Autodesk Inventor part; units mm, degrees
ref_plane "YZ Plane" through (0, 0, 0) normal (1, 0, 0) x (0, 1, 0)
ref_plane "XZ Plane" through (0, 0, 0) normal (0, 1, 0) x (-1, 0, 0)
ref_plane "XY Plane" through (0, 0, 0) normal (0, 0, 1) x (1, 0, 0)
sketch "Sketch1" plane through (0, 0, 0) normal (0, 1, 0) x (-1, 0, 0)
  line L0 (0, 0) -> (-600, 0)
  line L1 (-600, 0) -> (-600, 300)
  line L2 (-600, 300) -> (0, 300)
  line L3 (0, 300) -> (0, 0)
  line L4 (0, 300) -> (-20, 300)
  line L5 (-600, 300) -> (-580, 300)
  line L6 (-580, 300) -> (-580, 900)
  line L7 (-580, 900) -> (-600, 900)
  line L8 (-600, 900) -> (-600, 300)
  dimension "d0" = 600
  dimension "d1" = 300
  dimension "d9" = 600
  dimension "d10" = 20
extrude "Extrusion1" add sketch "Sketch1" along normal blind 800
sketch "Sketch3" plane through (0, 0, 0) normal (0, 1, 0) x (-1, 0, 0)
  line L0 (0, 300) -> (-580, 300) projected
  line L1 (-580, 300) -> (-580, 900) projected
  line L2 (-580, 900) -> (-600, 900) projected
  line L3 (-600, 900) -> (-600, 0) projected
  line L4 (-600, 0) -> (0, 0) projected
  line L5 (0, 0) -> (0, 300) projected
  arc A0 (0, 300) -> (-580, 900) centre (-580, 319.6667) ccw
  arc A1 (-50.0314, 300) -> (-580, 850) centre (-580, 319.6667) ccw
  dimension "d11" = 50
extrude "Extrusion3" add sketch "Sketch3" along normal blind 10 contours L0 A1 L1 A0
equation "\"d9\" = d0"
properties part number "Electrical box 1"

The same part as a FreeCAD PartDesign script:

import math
import FreeCAD as App
import Part
import Sketcher

V = App.Vector
Q = App.Units.Quantity


def add_polygon(sketch, points):
    """Adds a closed chain of lines whose ends are joined by coincident constraints."""
    first, n = sketch.GeometryCount, len(points)
    for a, b in zip(points, points[1:] + points[:1]):
        sketch.addGeometry(Part.LineSegment(App.Vector(*a, 0), App.Vector(*b, 0)), False)
    for i in range(n):
        sketch.addConstraint(Sketcher.Constraint("Coincident", first + i, 2, first + (i + 1) % n, 1))

doc = App.newDocument("Part")
params = doc.addObject("Spreadsheet::Sheet", "Params")
for row, (alias, value) in enumerate([
    ("sketch1_width", "600 mm"),
    ("sketch1_width2", "20 mm"),
    ("sketch1_height", "300 mm"),
    ("pad1_length", "800 mm"),
    ("sketch2_height", "50 mm"),
    ("pad2_length", "10 mm"),
], start=1):
    params.set(f"A{row}", alias)
    params.set(f"B{row}", "=" + value)
    params.setAlias(f"B{row}", alias)

body = doc.addObject("PartDesign::Body", "Body")

# Sketch on XZ plane
sketch1 = body.newObject("Sketcher::SketchObject", "Sketch")
sketch1.AttachmentSupport = (doc.getObject("XZ_Plane"), [""])
sketch1.MapMode = "FlatFace"
add_polygon(sketch1, [(600, 0), (0, 0), (0, 300), (580, 300), (580, 900), (600, 900)])  # lines 0-5
sketch1.addConstraint([
    Sketcher.Constraint("Horizontal", 0),
    Sketcher.Constraint("Vertical", 1),
    Sketcher.Constraint("Horizontal", 2),
    Sketcher.Constraint("Vertical", 3),
    Sketcher.Constraint("Horizontal", 4),
    Sketcher.Constraint("Vertical", 5),
    Sketcher.Constraint("Coincident", 0, 2, -1, 1),
    Sketcher.Constraint("Equal", 0, 3),
    Sketcher.Constraint("DistanceX", 0, 2, 0, 1, Q("600 mm")),
    Sketcher.Constraint("DistanceX", 4, 1, 4, 2, Q("20 mm")),
    Sketcher.Constraint("DistanceY", 1, 1, 1, 2, Q("300 mm")),
])
sketch1.setExpression("Constraints[14]", "Params.sketch1_width")
sketch1.setExpression("Constraints[15]", "Params.sketch1_width2")
sketch1.setExpression("Constraints[16]", "Params.sketch1_height")
pad1 = body.newObject("PartDesign::Pad", "Pad")
pad1.Profile = sketch1
pad1.setExpression("Length", "Params.pad1_length")
pad1.Reversed = True

# Sketch on XZ plane
sketch2 = body.newObject("Sketcher::SketchObject", "Sketch001")
sketch2.AttachmentSupport = (doc.getObject("XZ_Plane"), [""])
sketch2.MapMode = "FlatFace"
sketch2.addGeometry([
    Part.LineSegment(V(50, 300, 0), V(0, 300, 0)),
    Part.ArcOfCircle(Part.Circle(V(580, 320, 0), V(0, 0, 1), 580), math.radians(90), math.radians(182)),
    Part.LineSegment(V(580, 900, 0), V(580, 850, 0)),
    Part.ArcOfCircle(Part.Circle(V(580, 320, 0), V(0, 0, 1), 530), math.radians(90), math.radians(182)),
], False)
sketch2.addConstraint([
    Sketcher.Constraint("Coincident", 0, 2, 1, 2),
    Sketcher.Constraint("Coincident", 1, 1, 2, 1),
    Sketcher.Constraint("Coincident", 2, 2, 3, 1),
    Sketcher.Constraint("Coincident", 3, 2, 0, 1),
    Sketcher.Constraint("Horizontal", 0),
    Sketcher.Constraint("Vertical", 2),
    Sketcher.Constraint("Coincident", 3, 3, 1, 3),
    Sketcher.Constraint("PointOnObject", 0, 2, -2),
    Sketcher.Constraint("DistanceY", 2, 2, 2, 1, Q("50 mm")),
    Sketcher.Constraint("DistanceX", -1, 1, 1, 3, Q("580 mm")),
    Sketcher.Constraint("DistanceY", -1, 1, 0, 2, Q("300 mm")),
    Sketcher.Constraint("DistanceY", -1, 1, 1, 1, Q("900 mm")),
    Sketcher.Constraint("DistanceX", -1, 1, 2, 2, Q("580 mm")),
])
sketch2.setExpression("Constraints[8]", "Params.sketch2_height")
pad2 = body.newObject("PartDesign::Pad", "Pad001")
pad2.Profile = sketch2
pad2.setExpression("Length", "Params.pad2_length")
pad2.Reversed = True

doc.recompute()
